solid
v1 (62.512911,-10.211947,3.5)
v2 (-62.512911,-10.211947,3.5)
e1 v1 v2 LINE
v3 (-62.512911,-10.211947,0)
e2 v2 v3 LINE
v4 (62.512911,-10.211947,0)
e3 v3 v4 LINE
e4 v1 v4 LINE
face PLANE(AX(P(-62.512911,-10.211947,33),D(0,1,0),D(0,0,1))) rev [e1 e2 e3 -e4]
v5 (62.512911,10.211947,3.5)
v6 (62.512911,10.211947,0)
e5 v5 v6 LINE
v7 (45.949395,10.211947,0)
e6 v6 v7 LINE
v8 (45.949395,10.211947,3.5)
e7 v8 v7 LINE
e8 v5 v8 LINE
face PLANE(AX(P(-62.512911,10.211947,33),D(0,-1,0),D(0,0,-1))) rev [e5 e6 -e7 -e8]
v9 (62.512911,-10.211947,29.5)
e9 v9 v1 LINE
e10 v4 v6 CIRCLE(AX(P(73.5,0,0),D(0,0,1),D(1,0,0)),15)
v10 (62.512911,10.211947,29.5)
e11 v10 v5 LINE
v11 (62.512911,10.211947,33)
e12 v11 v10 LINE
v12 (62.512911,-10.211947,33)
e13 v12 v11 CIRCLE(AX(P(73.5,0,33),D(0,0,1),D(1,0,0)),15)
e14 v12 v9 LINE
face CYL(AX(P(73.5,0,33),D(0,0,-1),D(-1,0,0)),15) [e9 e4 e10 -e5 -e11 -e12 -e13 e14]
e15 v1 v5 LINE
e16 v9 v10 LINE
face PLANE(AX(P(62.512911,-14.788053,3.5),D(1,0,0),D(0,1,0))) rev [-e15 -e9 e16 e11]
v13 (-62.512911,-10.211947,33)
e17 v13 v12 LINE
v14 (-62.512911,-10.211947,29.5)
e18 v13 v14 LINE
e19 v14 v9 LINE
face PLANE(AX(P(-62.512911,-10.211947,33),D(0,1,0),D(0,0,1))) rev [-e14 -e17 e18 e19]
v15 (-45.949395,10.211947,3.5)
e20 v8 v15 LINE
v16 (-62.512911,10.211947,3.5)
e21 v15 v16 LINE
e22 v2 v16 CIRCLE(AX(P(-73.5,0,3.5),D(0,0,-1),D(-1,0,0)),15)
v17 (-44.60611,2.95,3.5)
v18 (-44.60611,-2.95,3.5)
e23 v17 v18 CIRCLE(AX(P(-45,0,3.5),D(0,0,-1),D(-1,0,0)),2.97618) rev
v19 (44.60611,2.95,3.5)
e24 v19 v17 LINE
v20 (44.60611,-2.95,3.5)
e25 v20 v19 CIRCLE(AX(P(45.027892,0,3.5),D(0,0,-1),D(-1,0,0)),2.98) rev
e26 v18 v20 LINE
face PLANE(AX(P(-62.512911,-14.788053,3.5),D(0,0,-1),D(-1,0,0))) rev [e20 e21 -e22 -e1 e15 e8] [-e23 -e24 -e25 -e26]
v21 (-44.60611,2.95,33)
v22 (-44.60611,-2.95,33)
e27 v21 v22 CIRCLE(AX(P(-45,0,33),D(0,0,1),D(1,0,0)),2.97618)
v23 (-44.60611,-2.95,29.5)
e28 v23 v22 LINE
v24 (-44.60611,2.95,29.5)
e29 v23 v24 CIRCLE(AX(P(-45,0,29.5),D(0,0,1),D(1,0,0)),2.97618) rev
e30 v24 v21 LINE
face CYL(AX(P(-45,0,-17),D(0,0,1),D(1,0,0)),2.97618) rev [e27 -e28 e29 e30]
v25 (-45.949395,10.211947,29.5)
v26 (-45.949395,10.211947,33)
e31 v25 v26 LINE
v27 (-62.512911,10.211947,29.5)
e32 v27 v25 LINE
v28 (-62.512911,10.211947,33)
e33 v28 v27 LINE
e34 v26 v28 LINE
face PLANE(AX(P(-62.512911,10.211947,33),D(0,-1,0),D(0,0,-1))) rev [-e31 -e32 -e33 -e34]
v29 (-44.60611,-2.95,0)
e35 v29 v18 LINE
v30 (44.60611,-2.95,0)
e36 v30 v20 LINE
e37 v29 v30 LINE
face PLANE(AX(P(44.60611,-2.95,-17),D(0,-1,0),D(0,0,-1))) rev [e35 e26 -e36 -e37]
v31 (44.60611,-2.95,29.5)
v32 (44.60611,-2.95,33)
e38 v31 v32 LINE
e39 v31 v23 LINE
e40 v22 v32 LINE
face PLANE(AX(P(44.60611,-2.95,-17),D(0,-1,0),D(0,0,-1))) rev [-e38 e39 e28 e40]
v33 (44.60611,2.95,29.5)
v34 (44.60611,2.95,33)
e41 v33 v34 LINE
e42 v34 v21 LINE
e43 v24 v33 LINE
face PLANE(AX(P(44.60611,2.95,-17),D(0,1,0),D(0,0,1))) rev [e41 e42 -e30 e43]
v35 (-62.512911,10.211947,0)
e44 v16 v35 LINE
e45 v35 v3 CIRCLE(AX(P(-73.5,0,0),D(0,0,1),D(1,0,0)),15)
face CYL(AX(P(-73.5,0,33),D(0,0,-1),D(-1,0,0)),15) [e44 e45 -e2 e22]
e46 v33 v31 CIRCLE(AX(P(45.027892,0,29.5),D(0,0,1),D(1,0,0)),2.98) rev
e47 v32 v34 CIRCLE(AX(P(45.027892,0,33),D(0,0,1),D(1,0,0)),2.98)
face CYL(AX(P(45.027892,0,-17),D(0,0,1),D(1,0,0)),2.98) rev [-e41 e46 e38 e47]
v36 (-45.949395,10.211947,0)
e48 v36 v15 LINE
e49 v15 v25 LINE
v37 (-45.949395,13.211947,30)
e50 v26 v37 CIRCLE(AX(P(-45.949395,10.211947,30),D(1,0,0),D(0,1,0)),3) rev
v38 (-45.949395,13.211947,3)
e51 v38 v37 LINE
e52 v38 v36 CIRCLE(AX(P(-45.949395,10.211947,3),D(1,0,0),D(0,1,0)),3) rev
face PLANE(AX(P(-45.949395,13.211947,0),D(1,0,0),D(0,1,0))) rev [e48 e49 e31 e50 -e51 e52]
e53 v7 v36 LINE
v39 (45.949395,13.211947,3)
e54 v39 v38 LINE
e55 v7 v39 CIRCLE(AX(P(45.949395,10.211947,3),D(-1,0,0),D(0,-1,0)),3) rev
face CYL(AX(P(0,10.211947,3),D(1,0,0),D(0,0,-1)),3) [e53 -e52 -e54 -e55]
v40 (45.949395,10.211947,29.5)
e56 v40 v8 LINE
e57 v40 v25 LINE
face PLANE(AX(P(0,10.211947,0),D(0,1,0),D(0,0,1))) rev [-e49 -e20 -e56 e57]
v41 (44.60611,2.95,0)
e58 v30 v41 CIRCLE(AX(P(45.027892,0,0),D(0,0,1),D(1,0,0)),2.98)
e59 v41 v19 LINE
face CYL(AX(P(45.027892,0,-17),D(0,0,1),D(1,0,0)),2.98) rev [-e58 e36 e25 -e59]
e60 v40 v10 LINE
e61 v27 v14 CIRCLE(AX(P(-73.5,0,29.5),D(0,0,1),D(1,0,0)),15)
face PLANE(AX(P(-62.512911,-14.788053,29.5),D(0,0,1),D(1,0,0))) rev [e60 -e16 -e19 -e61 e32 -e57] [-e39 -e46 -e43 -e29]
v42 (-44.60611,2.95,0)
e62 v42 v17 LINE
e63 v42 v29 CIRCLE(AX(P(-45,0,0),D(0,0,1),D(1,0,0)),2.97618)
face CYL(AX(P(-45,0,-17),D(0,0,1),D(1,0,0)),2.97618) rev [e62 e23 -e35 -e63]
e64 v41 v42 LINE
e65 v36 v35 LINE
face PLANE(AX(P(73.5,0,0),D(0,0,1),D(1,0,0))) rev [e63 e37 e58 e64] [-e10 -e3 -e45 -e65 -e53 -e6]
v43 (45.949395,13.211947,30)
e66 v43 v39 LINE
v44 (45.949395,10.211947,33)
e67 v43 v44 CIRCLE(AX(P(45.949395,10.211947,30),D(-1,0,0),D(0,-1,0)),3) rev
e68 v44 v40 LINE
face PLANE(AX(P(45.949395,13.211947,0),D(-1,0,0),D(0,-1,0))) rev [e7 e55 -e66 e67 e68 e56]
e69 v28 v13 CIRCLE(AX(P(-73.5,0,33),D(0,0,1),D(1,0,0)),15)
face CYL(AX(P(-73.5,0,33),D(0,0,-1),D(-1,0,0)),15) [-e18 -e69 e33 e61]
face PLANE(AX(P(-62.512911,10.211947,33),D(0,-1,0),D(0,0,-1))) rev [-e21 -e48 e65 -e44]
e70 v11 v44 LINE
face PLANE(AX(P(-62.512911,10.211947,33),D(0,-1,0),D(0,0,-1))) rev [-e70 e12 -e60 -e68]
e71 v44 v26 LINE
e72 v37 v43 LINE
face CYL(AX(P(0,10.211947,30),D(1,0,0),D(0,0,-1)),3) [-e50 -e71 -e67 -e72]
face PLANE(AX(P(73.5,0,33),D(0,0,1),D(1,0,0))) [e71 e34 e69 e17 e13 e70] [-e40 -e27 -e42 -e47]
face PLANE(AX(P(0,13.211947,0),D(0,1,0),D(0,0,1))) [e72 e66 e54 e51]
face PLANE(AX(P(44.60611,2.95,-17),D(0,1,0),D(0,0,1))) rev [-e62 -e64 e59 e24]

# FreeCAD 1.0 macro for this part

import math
import FreeCAD as App
import Part
import Sketcher
from FreeCAD import Vector


def edges_at(feature, points):
    """Names of the edges that pass closest to the given points."""
    edges = feature.Shape.Edges
    near = lambda p: min(range(len(edges)), key=lambda i: edges[i].distToShape(Part.Vertex(*p))[0])
    return sorted({f"Edge{near(p) + 1}" for p in points})


def add_polygon(sketch, points):
    """Adds a closed chain of lines whose ends are joined by coincident constraints."""
    first, n = sketch.GeometryCount, len(points)
    for a, b in zip(points, points[1:] + points[:1]):
        sketch.addGeometry(Part.LineSegment(App.Vector(*a, 0), App.Vector(*b, 0)), False)
    for i in range(n):
        sketch.addConstraint(Sketcher.Constraint("Coincident", first + i, 2, first + (i + 1) % n, 1))

doc = App.newDocument("Part")
body = doc.addObject("PartDesign::Body", "Body")

sketch1 = body.newObject("Sketcher::SketchObject", "Sketch")
sketch1.AttachmentSupport = (doc.getObject("XY_Plane"), [""])
sketch1.MapMode = "FlatFace"
sketch1.addGeometry(Part.LineSegment(Vector(63, 10, 0), Vector(-63, 10, 0)), False)
sketch1.addGeometry(Part.ArcOfCircle(Part.Circle(Vector(-74, 0, 0), Vector(0, 0, 1), 15), math.radians(43), math.radians(317)), False)
sketch1.addGeometry(Part.LineSegment(Vector(-63, -10, 0), Vector(63, -10, 0)), False)
sketch1.addGeometry(Part.ArcOfCircle(Part.Circle(Vector(74, 0, 0), Vector(0, 0, 1), 15), math.radians(-137), math.radians(137)), False)
sketch1.addConstraint(Sketcher.Constraint("Coincident", 0, 2, 1, 1))
sketch1.addConstraint(Sketcher.Constraint("Coincident", 1, 2, 2, 1))
sketch1.addConstraint(Sketcher.Constraint("Coincident", 2, 2, 3, 1))
sketch1.addConstraint(Sketcher.Constraint("Coincident", 3, 2, 0, 1))
sketch1.addConstraint(Sketcher.Constraint("Horizontal", 0))
sketch1.addConstraint(Sketcher.Constraint("Horizontal", 2))
sketch1.addConstraint(Sketcher.Constraint("Equal", 1, 3))
sketch1.addConstraint(Sketcher.Constraint("Symmetric", 1, 3, 3, 3, -1, 1))
sketch1.addConstraint(Sketcher.Constraint("Symmetric", 0, 2, 1, 2, -1))
sketch1.addConstraint(Sketcher.Constraint("Radius", 1, 15.0))
sketch1.addConstraint(Sketcher.Constraint("DistanceX", 1, 3, 3, 3, 147.0))
sketch1.addConstraint(Sketcher.Constraint("DistanceX", 0, 2, 0, 1, 125.025821))
pad1 = body.newObject("PartDesign::Pad", "Pad")
pad1.Profile = sketch1
pad1.Length = 33

sketch2 = body.newObject("Sketcher::SketchObject", "Sketch001")
sketch2.AttachmentSupport = (doc.getObject("XY_Plane"), [""])
sketch2.MapMode = "FlatFace"
sketch2.AttachmentOffset = App.Placement(Vector(0, 0, 43), App.Rotation())
sketch2.addGeometry(Part.LineSegment(Vector(44.6, 3, 0), Vector(-44.6, 3, 0)), False)
sketch2.addGeometry(Part.ArcOfCircle(Part.Circle(Vector(-45, 0, 0), Vector(0, 0, 1), 3), math.radians(82), math.radians(278)), False)
sketch2.addGeometry(Part.LineSegment(Vector(-44.6, -3, 0), Vector(44.6, -3, 0)), False)
sketch2.addGeometry(Part.ArcOfCircle(Part.Circle(Vector(45, 0, 0), Vector(0, 0, 1), 3), math.radians(-98), math.radians(98)), False)
sketch2.addConstraint(Sketcher.Constraint("Coincident", 0, 2, 1, 1))
sketch2.addConstraint(Sketcher.Constraint("Coincident", 1, 2, 2, 1))
sketch2.addConstraint(Sketcher.Constraint("Coincident", 2, 2, 3, 1))
sketch2.addConstraint(Sketcher.Constraint("Coincident", 3, 2, 0, 1))
sketch2.addConstraint(Sketcher.Constraint("Horizontal", 0))
sketch2.addConstraint(Sketcher.Constraint("Horizontal", 2))
sketch2.addConstraint(Sketcher.Constraint("Symmetric", 0, 2, 2, 2, -1, 1))
sketch2.addConstraint(Sketcher.Constraint("PointOnObject", 1, 3, -1))
sketch2.addConstraint(Sketcher.Constraint("PointOnObject", 3, 3, -1))
sketch2.addConstraint(Sketcher.Constraint("Radius", 3, 2.98))
sketch2.addConstraint(Sketcher.Constraint("DistanceX", 1, 3, -1, 1, 45.0))
sketch2.addConstraint(Sketcher.Constraint("DistanceY", 1, 2, 0, 2, 5.9))
sketch2.addConstraint(Sketcher.Constraint("Radius", 1, 2.97618))
pocket1 = body.newObject("PartDesign::Pocket", "Pocket")
pocket1.Profile = sketch2
pocket1.Length = 60

sketch3 = body.newObject("Sketcher::SketchObject", "Sketch002")
sketch3.AttachmentSupport = (doc.getObject("XZ_Plane"), [""])
sketch3.MapMode = "FlatFace"
sketch3.AttachmentOffset = App.Placement(Vector(0, 0, -10.211947), App.Rotation())
add_polygon(sketch3, [(-63, 4), (-63, 30), (63, 30), (63, 4)])
sketch3.addConstraint(Sketcher.Constraint("Vertical", 0))
sketch3.addConstraint(Sketcher.Constraint("Horizontal", 1))
sketch3.addConstraint(Sketcher.Constraint("Vertical", 2))
sketch3.addConstraint(Sketcher.Constraint("Horizontal", 3))
sketch3.addConstraint(Sketcher.Constraint("DistanceY", 0, 1, 0, 2, 26.0))
sketch3.addConstraint(Sketcher.Constraint("DistanceY", -1, 1, 0, 2, 29.5))
sketch3.addConstraint(Sketcher.Constraint("DistanceX", 1, 1, 1, 2, 125.025821))
sketch3.addConstraint(Sketcher.Constraint("DistanceX", 0, 2, -1, 1, 62.512911))
pocket2 = body.newObject("PartDesign::Pocket", "Pocket001")
pocket2.Profile = sketch3
pocket2.Length = 25
pocket2.Reversed = True

sketch4 = body.newObject("Sketcher::SketchObject", "Sketch003")
sketch4.AttachmentSupport = (doc.getObject("XZ_Plane"), [""])
sketch4.MapMode = "FlatFace"
sketch4.AttachmentOffset = App.Placement(Vector(0, 0, -10.211947), App.Rotation())
add_polygon(sketch4, [(-63, 4), (-63, 30), (-113, 30), (-113, 4)])
sketch4.addConstraint(Sketcher.Constraint("Vertical", 0))
sketch4.addConstraint(Sketcher.Constraint("Horizontal", 1))
sketch4.addConstraint(Sketcher.Constraint("Vertical", 2))
sketch4.addConstraint(Sketcher.Constraint("Horizontal", 3))
sketch4.addConstraint(Sketcher.Constraint("DistanceX", 1, 2, 1, 1, 50.0))
sketch4.addConstraint(Sketcher.Constraint("DistanceY", 0, 1, 0, 2, 26.0))
sketch4.addConstraint(Sketcher.Constraint("DistanceY", -1, 1, 0, 2, 29.5))
sketch4.addConstraint(Sketcher.Constraint("DistanceX", 0, 2, -1, 1, 62.512911))
pocket3 = body.newObject("PartDesign::Pocket", "Pocket002")
pocket3.Profile = sketch4
pocket3.Type = "ThroughAll"
pocket3.Midplane = True

sketch5 = body.newObject("Sketcher::SketchObject", "Sketch004")
sketch5.AttachmentSupport = (doc.getObject("XZ_Plane"), [""])
sketch5.MapMode = "FlatFace"
sketch5.AttachmentOffset = App.Placement(Vector(0, 0, -10.211947), App.Rotation())
add_polygon(sketch5, [(-46, 0), (-46, 33), (46, 33), (46, 0)])
sketch5.addConstraint(Sketcher.Constraint("Vertical", 0))
sketch5.addConstraint(Sketcher.Constraint("Horizontal", 1))
sketch5.addConstraint(Sketcher.Constraint("Vertical", 2))
sketch5.addConstraint(Sketcher.Constraint("Horizontal", 3))
sketch5.addConstraint(Sketcher.Constraint("Symmetric", 2, 2, 3, 2, -1, 1))
sketch5.addConstraint(Sketcher.Constraint("DistanceY", 0, 1, 0, 2, 33.0))
sketch5.addConstraint(Sketcher.Constraint("DistanceX", 1, 1, 1, 2, 91.898791))
pad2 = body.newObject("PartDesign::Pad", "Pad001")
pad2.Profile = sketch5
pad2.Length = 3
pad2.Reversed = True
doc.recompute()

fillet = body.newObject("PartDesign::Fillet", "Fillet")
fillet.Base = (pad2, edges_at(pad2, [(0, 13.212, 0), (0, 13.212, 33)]))
fillet.Radius = 3

doc.recompute()
